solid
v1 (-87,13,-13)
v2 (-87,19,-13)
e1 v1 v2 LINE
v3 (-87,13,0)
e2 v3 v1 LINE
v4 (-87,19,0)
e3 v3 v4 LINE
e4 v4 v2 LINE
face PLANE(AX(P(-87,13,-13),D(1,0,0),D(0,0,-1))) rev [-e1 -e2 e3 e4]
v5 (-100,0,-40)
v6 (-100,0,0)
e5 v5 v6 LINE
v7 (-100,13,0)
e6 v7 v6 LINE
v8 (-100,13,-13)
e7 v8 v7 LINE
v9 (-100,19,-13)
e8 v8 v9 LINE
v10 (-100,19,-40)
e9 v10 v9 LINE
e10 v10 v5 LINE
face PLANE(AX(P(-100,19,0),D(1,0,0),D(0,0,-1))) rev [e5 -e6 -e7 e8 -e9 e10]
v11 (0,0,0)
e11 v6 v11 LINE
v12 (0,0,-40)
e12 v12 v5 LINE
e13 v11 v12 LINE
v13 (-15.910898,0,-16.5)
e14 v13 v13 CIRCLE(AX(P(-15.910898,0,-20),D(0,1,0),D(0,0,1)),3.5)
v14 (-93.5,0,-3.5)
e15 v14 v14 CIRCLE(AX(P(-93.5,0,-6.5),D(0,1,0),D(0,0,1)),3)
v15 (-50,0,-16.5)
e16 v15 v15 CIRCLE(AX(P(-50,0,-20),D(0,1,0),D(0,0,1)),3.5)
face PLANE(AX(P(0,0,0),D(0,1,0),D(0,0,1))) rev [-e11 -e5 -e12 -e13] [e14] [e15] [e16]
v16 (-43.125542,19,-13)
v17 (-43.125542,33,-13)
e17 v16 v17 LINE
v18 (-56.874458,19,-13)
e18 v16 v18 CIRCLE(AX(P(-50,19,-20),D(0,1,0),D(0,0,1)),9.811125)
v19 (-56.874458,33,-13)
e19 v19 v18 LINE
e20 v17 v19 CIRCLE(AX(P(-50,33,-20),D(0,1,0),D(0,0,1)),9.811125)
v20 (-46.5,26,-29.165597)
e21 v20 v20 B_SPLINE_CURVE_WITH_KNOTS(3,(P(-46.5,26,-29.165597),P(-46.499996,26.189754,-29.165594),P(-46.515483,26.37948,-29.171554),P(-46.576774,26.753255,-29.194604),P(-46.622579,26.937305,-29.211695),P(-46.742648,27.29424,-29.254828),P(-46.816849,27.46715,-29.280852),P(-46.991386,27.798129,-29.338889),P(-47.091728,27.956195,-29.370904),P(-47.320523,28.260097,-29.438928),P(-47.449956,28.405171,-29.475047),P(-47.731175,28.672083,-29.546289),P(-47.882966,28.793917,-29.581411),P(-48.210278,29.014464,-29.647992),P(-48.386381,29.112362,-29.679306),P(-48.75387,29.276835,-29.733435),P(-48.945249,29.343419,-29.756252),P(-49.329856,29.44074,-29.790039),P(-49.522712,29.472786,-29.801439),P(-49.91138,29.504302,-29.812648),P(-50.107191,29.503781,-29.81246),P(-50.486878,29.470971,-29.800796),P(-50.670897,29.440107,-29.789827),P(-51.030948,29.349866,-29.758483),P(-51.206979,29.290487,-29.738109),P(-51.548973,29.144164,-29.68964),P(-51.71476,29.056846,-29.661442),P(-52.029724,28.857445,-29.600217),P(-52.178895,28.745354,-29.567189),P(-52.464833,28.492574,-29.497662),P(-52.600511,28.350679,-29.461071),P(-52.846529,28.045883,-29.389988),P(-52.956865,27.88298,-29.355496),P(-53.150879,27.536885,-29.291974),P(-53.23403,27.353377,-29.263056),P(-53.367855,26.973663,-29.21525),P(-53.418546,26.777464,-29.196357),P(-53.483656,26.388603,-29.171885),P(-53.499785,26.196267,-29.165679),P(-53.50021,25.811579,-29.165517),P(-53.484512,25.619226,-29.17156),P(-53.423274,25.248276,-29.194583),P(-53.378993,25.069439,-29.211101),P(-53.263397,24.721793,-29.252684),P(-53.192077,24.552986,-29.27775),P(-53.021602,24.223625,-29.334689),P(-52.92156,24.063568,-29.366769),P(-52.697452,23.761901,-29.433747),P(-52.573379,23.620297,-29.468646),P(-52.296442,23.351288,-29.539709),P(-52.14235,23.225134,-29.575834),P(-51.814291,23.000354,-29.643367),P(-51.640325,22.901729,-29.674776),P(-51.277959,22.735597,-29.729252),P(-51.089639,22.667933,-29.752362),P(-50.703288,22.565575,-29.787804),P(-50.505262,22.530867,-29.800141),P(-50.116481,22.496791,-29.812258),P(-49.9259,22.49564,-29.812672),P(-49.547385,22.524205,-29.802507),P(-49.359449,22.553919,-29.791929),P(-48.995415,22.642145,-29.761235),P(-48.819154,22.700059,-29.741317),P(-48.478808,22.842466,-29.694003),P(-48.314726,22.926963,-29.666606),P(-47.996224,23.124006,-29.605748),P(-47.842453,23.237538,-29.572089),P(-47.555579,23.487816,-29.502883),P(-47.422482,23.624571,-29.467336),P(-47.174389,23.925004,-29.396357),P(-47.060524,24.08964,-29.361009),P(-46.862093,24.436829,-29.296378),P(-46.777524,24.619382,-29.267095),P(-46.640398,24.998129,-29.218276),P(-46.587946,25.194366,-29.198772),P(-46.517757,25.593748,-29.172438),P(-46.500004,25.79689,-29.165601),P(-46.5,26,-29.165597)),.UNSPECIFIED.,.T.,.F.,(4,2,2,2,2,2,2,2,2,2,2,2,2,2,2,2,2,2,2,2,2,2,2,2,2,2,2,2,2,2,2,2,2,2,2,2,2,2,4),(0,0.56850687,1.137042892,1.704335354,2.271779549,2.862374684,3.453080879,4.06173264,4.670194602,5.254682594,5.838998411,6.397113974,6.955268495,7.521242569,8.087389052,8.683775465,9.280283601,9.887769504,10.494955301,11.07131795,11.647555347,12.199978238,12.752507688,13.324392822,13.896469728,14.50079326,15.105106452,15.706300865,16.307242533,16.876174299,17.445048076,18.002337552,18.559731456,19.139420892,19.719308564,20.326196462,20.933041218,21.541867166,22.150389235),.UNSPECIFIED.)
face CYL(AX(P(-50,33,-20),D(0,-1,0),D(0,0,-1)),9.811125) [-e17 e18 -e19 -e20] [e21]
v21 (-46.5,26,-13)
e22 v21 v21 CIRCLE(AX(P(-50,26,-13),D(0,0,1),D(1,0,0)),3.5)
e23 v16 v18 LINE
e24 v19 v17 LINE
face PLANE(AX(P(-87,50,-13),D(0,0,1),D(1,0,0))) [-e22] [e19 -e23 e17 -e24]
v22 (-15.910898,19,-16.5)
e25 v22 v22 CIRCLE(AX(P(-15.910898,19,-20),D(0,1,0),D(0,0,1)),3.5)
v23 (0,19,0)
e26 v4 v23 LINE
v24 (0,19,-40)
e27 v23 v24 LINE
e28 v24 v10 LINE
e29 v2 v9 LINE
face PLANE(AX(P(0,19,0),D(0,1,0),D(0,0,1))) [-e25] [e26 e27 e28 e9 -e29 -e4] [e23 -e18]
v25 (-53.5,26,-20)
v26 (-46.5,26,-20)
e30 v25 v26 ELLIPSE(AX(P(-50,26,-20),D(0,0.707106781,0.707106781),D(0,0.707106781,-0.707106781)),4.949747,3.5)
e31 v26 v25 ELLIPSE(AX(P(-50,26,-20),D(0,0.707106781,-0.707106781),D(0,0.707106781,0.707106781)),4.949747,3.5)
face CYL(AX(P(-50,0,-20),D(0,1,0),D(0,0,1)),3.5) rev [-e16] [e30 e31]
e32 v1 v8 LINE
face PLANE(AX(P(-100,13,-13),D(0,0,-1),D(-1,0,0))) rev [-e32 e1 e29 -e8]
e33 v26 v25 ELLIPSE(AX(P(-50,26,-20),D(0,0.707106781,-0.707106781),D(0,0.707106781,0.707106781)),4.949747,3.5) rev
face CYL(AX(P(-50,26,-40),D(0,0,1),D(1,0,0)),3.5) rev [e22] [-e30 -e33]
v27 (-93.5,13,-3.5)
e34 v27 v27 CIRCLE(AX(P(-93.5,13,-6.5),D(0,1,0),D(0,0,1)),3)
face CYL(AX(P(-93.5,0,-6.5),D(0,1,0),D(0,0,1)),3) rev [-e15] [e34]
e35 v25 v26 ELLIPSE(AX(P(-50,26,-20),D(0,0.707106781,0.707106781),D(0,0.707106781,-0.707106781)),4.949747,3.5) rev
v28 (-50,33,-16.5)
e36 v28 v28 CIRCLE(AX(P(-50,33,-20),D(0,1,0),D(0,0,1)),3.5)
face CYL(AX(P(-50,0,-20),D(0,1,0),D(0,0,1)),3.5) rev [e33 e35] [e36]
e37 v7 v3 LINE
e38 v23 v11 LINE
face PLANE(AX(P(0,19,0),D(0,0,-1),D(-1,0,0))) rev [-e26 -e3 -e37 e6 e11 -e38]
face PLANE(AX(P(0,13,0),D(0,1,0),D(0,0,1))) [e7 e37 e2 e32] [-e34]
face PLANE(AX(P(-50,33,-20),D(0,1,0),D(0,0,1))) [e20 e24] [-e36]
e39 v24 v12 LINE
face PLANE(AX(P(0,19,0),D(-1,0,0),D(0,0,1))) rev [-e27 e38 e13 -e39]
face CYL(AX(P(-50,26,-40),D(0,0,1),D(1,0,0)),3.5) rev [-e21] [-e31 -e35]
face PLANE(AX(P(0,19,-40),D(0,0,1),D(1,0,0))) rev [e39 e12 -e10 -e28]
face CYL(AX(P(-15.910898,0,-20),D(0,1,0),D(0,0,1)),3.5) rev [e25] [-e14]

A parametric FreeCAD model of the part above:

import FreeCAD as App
import Part
import Sketcher

V = App.Vector

doc = App.newDocument("Part")
body = doc.addObject("PartDesign::Body", "Body")

# Sketch on XZ plane
sketch1 = doc.addObject("Sketcher::SketchObject", "Sketch")
body.addObject(sketch1)
sketch1.AttachmentSupport = (doc.XZ_Plane, [""])
sketch1.MapMode = "FlatFace"
sketch1.addGeometry([
    Part.LineSegment(V(-100, -40, 0), V(-100, 0, 0)),
    Part.LineSegment(V(-100, 0, 0), V(0, 0, 0)),
    Part.LineSegment(V(0, 0, 0), V(0, -40, 0)),
    Part.LineSegment(V(0, -40, 0), V(-100, -40, 0)),
], False)
sketch1.addConstraint([
    Sketcher.Constraint("Coincident", 0, 2, 1, 1),
    Sketcher.Constraint("Coincident", 1, 2, 2, 1),
    Sketcher.Constraint("Coincident", 2, 2, 3, 1),
    Sketcher.Constraint("Coincident", 3, 2, 0, 1),
    Sketcher.Constraint("Vertical", 0),
    Sketcher.Constraint("Horizontal", 1),
    Sketcher.Constraint("Vertical", 2),
    Sketcher.Constraint("Horizontal", 3),
    Sketcher.Constraint("Coincident", 1, 2, -1, 1),
    Sketcher.Constraint("DistanceX", 1, 1, 1, 2, 100.0),
    Sketcher.Constraint("DistanceY", 0, 1, 0, 2, 40.0),
])
pad1 = doc.addObject("PartDesign::Pad", "Pad")
body.addObject(pad1)
pad1.Profile = sketch1
pad1.Length = 19
pad1.Reversed = True

# Sketch on XZ plane
sketch2 = doc.addObject("Sketcher::SketchObject", "Sketch001")
body.addObject(sketch2)
sketch2.AttachmentSupport = (doc.XZ_Plane, [""])
sketch2.MapMode = "FlatFace"
sketch2.AttachmentOffset = App.Placement(V(0, 0, -19), App.Rotation())
sketch2.addGeometry(Part.Circle(V(-50, -20, 0), V(0, 0, 1), 10), False)
sketch2.addConstraint([
    Sketcher.Constraint("DistanceX", 0, 3, -1, 1, 50.0),
    Sketcher.Constraint("DistanceY", 0, 3, -1, 1, 20.0),
    Sketcher.Constraint("Diameter", 0, 19.62225),
])
pad2 = doc.addObject("PartDesign::Pad", "Pad001")
body.addObject(pad2)
pad2.Profile = sketch2
pad2.Length = 14
pad2.Reversed = True

# Sketch on XZ plane
sketch3 = doc.addObject("Sketcher::SketchObject", "Sketch002")
body.addObject(sketch3)
sketch3.AttachmentSupport = (doc.XZ_Plane, [""])
sketch3.MapMode = "FlatFace"
sketch3.AttachmentOffset = App.Placement(V(0, 0, -19), App.Rotation())
sketch3.addGeometry([
    Part.LineSegment(V(-100, -13, 0), V(-100, 0, 0)),
    Part.LineSegment(V(-100, 0, 0), V(-87, 0, 0)),
    Part.LineSegment(V(-87, 0, 0), V(-87, -13, 0)),
    Part.LineSegment(V(-87, -13, 0), V(-100, -13, 0)),
], False)
sketch3.addConstraint([
    Sketcher.Constraint("Coincident", 0, 2, 1, 1),
    Sketcher.Constraint("Coincident", 1, 2, 2, 1),
    Sketcher.Constraint("Coincident", 2, 2, 3, 1),
    Sketcher.Constraint("Coincident", 3, 2, 0, 1),
    Sketcher.Constraint("Vertical", 0),
    Sketcher.Constraint("Horizontal", 1),
    Sketcher.Constraint("Vertical", 2),
    Sketcher.Constraint("Horizontal", 3),
    Sketcher.Constraint("PointOnObject", 0, 2, -1),
    Sketcher.Constraint("Equal", 3, 0),
    Sketcher.Constraint("DistanceX", 1, 1, 1, 2, 13.0),
    Sketcher.Constraint("DistanceX", 0, 2, -1, 1, 100.0),
])
pocket1 = doc.addObject("PartDesign::Pocket", "Pocket")
body.addObject(pocket1)
pocket1.Profile = sketch3
pocket1.Length = 6
pocket1.Reversed = True

# Sketch on XZ plane
sketch4 = doc.addObject("Sketcher::SketchObject", "Sketch003")
body.addObject(sketch4)
sketch4.AttachmentSupport = (doc.XZ_Plane, [""])
sketch4.MapMode = "FlatFace"
sketch4.AttachmentOffset = App.Placement(V(0, 0, -13), App.Rotation())
sketch4.addGeometry(Part.Circle(V(-93.5, -6.5, 0), V(0, 0, 1), 3), False)
sketch4.addConstraint([
    Sketcher.Constraint("Diameter", 0, 6.0),
    Sketcher.Constraint("DistanceX", 0, 3, -1, 1, 93.5),
    Sketcher.Constraint("DistanceY", 0, 3, -1, 1, 6.5),
])
pocket2 = doc.addObject("PartDesign::Pocket", "Pocket001")
body.addObject(pocket2)
pocket2.Profile = sketch4
pocket2.Type = "ThroughAll"
pocket2.Reversed = True

# Sketch on XZ plane
sketch5 = doc.addObject("Sketcher::SketchObject", "Sketch004")
body.addObject(sketch5)
sketch5.AttachmentSupport = (doc.XZ_Plane, [""])
sketch5.MapMode = "FlatFace"
sketch5.AttachmentOffset = App.Placement(V(0, 0, -33), App.Rotation())
sketch5.addGeometry(Part.Circle(V(-50, -20, 0), V(0, 0, 1), 3.5), False)
sketch5.addConstraint([
    Sketcher.Constraint("Diameter", 0, 7.0),
    Sketcher.Constraint("DistanceX", 0, 3, -1, 1, 50.0),
    Sketcher.Constraint("DistanceY", 0, 3, -1, 1, 20.0),
])
pocket3 = doc.addObject("PartDesign::Pocket", "Pocket002")
body.addObject(pocket3)
pocket3.Profile = sketch5
pocket3.Type = "ThroughAll"
pocket3.Reversed = True

# Sketch on XZ plane
sketch6 = doc.addObject("Sketcher::SketchObject", "Sketch005")
body.addObject(sketch6)
sketch6.AttachmentSupport = (doc.XZ_Plane, [""])
sketch6.MapMode = "FlatFace"
sketch6.AttachmentOffset = App.Placement(V(0, 0, -19), App.Rotation())
sketch6.addGeometry(Part.Circle(V(-15.9, -20, 0), V(0, 0, 1), 3.5), False)
sketch6.addConstraint([
    Sketcher.Constraint("Diameter", 0, 7.0),
    Sketcher.Constraint("DistanceY", 0, 3, -1, 1, 20.0),
    Sketcher.Constraint("DistanceX", 0, 3, -1, 1, 15.910898),
])
pocket4 = doc.addObject("PartDesign::Pocket", "Pocket003")
body.addObject(pocket4)
pocket4.Profile = sketch6
pocket4.Type = "ThroughAll"
pocket4.Reversed = True

# Sketch on XZ plane
sketch7 = doc.addObject("Sketcher::SketchObject", "Sketch006")
body.addObject(sketch7)
sketch7.AttachmentSupport = (doc.XZ_Plane, [""])
sketch7.MapMode = "FlatFace"
sketch7.AttachmentOffset = App.Placement(V(0, 0, -19), App.Rotation())
sketch7.addGeometry([
    Part.LineSegment(V(-87, -13, 0), V(-87, 0, 0)),
    Part.LineSegment(V(-87, 0, 0), V(0, 0, 0)),
    Part.LineSegment(V(0, 0, 0), V(0, -13, 0)),
    Part.LineSegment(V(0, -13, 0), V(-87, -13, 0)),
], False)
sketch7.addConstraint([
    Sketcher.Constraint("Coincident", 0, 2, 1, 1),
    Sketcher.Constraint("Coincident", 1, 2, 2, 1),
    Sketcher.Constraint("Coincident", 2, 2, 3, 1),
    Sketcher.Constraint("Coincident", 3, 2, 0, 1),
    Sketcher.Constraint("Vertical", 0),
    Sketcher.Constraint("Horizontal", 1),
    Sketcher.Constraint("Vertical", 2),
    Sketcher.Constraint("Horizontal", 3),
    Sketcher.Constraint("Coincident", 1, 2, -1, 1),
    Sketcher.Constraint("DistanceX", 1, 1, 1, 2, 87.0),
    Sketcher.Constraint("DistanceY", 0, 1, 0, 2, 13.0),
])
pocket5 = doc.addObject("PartDesign::Pocket", "Pocket004")
body.addObject(pocket5)
pocket5.Profile = sketch7
pocket5.Length = 31

# Sketch on XY plane
sketch8 = doc.addObject("Sketcher::SketchObject", "Sketch007")
body.addObject(sketch8)
sketch8.AttachmentSupport = (doc.XY_Plane, [""])
sketch8.MapMode = "FlatFace"
sketch8.AttachmentOffset = App.Placement(V(0, 0, -13), App.Rotation())
sketch8.addGeometry(Part.Circle(V(-50, 26, 0), V(0, 0, 1), 3.5), False)
sketch8.addConstraint([
    Sketcher.Constraint("Diameter", 0, 7.0),
    Sketcher.Constraint("DistanceX", 0, 3, -1, 1, 50.0),
    Sketcher.Constraint("DistanceY", -1, 1, 0, 3, 26.0),
])
pocket6 = doc.addObject("PartDesign::Pocket", "Pocket005")
body.addObject(pocket6)
pocket6.Profile = sketch8
pocket6.Type = "ThroughAll"

doc.recompute()
